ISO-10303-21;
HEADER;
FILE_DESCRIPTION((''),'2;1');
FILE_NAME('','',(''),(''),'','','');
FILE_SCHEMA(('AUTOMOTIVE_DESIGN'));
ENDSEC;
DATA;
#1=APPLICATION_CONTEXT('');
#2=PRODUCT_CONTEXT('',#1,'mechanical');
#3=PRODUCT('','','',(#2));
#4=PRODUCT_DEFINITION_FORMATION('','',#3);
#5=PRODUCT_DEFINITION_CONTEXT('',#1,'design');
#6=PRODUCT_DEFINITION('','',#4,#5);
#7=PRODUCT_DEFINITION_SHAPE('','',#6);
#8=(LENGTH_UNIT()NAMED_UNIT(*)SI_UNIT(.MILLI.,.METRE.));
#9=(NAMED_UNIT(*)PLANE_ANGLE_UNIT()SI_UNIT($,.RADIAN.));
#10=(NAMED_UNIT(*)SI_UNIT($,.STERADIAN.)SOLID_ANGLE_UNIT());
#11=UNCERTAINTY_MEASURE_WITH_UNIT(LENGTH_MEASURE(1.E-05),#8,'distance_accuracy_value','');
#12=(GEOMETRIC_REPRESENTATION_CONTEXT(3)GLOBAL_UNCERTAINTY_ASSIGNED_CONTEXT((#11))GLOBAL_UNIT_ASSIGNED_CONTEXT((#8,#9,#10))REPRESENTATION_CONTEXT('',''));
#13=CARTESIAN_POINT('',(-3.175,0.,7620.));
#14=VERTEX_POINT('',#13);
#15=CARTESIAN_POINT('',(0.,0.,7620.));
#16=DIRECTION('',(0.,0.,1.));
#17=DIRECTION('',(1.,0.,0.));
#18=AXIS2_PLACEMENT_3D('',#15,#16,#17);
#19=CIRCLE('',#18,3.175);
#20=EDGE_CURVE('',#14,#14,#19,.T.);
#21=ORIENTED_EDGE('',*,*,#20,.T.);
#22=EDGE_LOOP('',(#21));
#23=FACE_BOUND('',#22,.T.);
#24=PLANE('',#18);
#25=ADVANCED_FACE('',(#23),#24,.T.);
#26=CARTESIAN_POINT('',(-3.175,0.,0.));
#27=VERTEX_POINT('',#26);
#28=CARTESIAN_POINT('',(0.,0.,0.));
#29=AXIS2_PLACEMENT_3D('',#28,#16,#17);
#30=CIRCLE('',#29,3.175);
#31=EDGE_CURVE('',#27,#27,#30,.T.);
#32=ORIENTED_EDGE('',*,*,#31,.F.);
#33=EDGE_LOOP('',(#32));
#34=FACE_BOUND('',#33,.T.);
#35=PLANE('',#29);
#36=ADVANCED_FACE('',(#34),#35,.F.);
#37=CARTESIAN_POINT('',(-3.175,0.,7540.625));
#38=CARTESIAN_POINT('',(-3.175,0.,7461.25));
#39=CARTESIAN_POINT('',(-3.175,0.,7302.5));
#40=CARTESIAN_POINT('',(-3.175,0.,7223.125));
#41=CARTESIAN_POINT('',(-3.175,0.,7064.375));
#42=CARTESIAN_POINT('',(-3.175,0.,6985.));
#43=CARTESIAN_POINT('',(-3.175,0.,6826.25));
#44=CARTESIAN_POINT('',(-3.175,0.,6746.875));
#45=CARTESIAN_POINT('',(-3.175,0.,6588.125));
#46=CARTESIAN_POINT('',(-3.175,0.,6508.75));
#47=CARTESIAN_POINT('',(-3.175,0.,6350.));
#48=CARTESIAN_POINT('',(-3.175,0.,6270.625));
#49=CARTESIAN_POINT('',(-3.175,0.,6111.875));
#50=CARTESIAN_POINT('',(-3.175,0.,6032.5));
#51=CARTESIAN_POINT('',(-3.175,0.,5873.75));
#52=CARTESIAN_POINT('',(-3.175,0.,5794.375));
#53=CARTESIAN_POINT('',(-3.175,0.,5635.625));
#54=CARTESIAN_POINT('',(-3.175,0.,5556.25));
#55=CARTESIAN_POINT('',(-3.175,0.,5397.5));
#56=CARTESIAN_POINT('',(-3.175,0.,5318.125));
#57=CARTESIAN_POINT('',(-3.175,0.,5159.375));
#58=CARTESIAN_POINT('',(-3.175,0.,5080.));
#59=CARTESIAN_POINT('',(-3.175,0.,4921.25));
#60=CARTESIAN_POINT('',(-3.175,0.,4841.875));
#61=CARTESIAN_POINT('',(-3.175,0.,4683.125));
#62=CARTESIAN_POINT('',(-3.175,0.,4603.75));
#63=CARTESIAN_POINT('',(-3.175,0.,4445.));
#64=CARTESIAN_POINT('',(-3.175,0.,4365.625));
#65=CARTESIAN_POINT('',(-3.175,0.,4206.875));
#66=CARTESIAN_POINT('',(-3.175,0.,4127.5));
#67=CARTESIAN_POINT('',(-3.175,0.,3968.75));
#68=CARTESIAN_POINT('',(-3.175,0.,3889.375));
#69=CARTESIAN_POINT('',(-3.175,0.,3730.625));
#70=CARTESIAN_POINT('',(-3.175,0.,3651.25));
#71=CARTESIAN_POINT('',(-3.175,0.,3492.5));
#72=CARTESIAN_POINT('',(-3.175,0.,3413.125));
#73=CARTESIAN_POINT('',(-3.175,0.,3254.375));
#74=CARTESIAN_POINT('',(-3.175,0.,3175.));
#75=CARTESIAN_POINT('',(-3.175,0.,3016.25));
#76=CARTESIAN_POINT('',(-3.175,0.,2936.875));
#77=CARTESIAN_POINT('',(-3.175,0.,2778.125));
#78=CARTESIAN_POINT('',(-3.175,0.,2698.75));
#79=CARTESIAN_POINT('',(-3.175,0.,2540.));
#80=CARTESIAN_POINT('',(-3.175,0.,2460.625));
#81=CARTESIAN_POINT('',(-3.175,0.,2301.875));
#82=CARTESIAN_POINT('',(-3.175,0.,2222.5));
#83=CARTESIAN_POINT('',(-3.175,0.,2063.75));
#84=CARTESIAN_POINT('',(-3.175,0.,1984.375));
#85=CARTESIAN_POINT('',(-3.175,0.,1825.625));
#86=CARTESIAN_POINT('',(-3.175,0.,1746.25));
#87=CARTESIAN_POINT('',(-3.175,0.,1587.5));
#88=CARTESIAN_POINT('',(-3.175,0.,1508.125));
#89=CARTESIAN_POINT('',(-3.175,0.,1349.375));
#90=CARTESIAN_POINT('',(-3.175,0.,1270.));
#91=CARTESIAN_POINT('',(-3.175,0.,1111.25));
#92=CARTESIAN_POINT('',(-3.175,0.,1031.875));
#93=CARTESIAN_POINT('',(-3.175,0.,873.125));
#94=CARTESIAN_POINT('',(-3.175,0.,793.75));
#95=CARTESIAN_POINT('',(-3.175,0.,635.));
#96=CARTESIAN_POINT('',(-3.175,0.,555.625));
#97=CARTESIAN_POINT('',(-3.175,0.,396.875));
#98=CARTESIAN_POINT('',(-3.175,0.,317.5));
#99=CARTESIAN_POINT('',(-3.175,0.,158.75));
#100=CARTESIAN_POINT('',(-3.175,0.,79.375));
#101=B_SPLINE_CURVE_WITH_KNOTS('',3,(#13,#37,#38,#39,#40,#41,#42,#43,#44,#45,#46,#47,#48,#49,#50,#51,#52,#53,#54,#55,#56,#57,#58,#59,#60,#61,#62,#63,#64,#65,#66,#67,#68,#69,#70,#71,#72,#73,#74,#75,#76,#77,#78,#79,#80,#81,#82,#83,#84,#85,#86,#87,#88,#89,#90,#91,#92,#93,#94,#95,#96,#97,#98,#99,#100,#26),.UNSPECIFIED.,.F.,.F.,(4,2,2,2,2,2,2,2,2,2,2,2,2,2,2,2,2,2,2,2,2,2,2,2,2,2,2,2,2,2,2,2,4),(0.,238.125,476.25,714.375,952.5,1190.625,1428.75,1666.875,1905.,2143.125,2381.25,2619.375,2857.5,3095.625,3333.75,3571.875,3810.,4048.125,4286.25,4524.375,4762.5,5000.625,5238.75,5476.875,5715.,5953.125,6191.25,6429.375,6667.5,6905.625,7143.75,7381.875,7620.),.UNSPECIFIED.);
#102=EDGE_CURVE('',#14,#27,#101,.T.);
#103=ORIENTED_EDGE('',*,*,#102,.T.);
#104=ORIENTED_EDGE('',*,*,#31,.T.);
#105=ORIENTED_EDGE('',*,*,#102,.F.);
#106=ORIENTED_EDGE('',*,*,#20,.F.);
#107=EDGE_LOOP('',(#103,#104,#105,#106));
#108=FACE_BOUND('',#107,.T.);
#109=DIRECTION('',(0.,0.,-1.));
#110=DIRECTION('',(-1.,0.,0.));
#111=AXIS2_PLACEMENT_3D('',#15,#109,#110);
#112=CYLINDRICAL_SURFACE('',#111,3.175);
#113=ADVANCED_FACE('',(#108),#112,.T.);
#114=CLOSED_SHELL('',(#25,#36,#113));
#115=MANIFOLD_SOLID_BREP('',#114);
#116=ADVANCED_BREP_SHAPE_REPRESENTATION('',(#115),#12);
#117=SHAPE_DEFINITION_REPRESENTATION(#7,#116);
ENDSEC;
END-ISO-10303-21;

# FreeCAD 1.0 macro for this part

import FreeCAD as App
import Part
import Sketcher

V = App.Vector
Q = App.Units.Quantity

doc = App.newDocument("Part")
body = doc.addObject("PartDesign::Body", "Body")

sketch1 = body.newObject("Sketcher::SketchObject", "Sketch")
sketch1.AttachmentSupport = (doc.getObject("XY_Plane"), [""])
sketch1.MapMode = "FlatFace"
sketch1.addGeometry(Part.Circle(V(0, 0, 0), V(0, 0, 1), 3.175), False)
sketch1.addConstraint([
    Sketcher.Constraint("Coincident", 0, 3, -1, 1),
    Sketcher.Constraint("Diameter", 0, Q("0.25 in")),
])
pad1 = body.newObject("PartDesign::Pad", "Pad")
pad1.Profile = sketch1
pad1.Length = Q("300 in")

doc.recompute()
